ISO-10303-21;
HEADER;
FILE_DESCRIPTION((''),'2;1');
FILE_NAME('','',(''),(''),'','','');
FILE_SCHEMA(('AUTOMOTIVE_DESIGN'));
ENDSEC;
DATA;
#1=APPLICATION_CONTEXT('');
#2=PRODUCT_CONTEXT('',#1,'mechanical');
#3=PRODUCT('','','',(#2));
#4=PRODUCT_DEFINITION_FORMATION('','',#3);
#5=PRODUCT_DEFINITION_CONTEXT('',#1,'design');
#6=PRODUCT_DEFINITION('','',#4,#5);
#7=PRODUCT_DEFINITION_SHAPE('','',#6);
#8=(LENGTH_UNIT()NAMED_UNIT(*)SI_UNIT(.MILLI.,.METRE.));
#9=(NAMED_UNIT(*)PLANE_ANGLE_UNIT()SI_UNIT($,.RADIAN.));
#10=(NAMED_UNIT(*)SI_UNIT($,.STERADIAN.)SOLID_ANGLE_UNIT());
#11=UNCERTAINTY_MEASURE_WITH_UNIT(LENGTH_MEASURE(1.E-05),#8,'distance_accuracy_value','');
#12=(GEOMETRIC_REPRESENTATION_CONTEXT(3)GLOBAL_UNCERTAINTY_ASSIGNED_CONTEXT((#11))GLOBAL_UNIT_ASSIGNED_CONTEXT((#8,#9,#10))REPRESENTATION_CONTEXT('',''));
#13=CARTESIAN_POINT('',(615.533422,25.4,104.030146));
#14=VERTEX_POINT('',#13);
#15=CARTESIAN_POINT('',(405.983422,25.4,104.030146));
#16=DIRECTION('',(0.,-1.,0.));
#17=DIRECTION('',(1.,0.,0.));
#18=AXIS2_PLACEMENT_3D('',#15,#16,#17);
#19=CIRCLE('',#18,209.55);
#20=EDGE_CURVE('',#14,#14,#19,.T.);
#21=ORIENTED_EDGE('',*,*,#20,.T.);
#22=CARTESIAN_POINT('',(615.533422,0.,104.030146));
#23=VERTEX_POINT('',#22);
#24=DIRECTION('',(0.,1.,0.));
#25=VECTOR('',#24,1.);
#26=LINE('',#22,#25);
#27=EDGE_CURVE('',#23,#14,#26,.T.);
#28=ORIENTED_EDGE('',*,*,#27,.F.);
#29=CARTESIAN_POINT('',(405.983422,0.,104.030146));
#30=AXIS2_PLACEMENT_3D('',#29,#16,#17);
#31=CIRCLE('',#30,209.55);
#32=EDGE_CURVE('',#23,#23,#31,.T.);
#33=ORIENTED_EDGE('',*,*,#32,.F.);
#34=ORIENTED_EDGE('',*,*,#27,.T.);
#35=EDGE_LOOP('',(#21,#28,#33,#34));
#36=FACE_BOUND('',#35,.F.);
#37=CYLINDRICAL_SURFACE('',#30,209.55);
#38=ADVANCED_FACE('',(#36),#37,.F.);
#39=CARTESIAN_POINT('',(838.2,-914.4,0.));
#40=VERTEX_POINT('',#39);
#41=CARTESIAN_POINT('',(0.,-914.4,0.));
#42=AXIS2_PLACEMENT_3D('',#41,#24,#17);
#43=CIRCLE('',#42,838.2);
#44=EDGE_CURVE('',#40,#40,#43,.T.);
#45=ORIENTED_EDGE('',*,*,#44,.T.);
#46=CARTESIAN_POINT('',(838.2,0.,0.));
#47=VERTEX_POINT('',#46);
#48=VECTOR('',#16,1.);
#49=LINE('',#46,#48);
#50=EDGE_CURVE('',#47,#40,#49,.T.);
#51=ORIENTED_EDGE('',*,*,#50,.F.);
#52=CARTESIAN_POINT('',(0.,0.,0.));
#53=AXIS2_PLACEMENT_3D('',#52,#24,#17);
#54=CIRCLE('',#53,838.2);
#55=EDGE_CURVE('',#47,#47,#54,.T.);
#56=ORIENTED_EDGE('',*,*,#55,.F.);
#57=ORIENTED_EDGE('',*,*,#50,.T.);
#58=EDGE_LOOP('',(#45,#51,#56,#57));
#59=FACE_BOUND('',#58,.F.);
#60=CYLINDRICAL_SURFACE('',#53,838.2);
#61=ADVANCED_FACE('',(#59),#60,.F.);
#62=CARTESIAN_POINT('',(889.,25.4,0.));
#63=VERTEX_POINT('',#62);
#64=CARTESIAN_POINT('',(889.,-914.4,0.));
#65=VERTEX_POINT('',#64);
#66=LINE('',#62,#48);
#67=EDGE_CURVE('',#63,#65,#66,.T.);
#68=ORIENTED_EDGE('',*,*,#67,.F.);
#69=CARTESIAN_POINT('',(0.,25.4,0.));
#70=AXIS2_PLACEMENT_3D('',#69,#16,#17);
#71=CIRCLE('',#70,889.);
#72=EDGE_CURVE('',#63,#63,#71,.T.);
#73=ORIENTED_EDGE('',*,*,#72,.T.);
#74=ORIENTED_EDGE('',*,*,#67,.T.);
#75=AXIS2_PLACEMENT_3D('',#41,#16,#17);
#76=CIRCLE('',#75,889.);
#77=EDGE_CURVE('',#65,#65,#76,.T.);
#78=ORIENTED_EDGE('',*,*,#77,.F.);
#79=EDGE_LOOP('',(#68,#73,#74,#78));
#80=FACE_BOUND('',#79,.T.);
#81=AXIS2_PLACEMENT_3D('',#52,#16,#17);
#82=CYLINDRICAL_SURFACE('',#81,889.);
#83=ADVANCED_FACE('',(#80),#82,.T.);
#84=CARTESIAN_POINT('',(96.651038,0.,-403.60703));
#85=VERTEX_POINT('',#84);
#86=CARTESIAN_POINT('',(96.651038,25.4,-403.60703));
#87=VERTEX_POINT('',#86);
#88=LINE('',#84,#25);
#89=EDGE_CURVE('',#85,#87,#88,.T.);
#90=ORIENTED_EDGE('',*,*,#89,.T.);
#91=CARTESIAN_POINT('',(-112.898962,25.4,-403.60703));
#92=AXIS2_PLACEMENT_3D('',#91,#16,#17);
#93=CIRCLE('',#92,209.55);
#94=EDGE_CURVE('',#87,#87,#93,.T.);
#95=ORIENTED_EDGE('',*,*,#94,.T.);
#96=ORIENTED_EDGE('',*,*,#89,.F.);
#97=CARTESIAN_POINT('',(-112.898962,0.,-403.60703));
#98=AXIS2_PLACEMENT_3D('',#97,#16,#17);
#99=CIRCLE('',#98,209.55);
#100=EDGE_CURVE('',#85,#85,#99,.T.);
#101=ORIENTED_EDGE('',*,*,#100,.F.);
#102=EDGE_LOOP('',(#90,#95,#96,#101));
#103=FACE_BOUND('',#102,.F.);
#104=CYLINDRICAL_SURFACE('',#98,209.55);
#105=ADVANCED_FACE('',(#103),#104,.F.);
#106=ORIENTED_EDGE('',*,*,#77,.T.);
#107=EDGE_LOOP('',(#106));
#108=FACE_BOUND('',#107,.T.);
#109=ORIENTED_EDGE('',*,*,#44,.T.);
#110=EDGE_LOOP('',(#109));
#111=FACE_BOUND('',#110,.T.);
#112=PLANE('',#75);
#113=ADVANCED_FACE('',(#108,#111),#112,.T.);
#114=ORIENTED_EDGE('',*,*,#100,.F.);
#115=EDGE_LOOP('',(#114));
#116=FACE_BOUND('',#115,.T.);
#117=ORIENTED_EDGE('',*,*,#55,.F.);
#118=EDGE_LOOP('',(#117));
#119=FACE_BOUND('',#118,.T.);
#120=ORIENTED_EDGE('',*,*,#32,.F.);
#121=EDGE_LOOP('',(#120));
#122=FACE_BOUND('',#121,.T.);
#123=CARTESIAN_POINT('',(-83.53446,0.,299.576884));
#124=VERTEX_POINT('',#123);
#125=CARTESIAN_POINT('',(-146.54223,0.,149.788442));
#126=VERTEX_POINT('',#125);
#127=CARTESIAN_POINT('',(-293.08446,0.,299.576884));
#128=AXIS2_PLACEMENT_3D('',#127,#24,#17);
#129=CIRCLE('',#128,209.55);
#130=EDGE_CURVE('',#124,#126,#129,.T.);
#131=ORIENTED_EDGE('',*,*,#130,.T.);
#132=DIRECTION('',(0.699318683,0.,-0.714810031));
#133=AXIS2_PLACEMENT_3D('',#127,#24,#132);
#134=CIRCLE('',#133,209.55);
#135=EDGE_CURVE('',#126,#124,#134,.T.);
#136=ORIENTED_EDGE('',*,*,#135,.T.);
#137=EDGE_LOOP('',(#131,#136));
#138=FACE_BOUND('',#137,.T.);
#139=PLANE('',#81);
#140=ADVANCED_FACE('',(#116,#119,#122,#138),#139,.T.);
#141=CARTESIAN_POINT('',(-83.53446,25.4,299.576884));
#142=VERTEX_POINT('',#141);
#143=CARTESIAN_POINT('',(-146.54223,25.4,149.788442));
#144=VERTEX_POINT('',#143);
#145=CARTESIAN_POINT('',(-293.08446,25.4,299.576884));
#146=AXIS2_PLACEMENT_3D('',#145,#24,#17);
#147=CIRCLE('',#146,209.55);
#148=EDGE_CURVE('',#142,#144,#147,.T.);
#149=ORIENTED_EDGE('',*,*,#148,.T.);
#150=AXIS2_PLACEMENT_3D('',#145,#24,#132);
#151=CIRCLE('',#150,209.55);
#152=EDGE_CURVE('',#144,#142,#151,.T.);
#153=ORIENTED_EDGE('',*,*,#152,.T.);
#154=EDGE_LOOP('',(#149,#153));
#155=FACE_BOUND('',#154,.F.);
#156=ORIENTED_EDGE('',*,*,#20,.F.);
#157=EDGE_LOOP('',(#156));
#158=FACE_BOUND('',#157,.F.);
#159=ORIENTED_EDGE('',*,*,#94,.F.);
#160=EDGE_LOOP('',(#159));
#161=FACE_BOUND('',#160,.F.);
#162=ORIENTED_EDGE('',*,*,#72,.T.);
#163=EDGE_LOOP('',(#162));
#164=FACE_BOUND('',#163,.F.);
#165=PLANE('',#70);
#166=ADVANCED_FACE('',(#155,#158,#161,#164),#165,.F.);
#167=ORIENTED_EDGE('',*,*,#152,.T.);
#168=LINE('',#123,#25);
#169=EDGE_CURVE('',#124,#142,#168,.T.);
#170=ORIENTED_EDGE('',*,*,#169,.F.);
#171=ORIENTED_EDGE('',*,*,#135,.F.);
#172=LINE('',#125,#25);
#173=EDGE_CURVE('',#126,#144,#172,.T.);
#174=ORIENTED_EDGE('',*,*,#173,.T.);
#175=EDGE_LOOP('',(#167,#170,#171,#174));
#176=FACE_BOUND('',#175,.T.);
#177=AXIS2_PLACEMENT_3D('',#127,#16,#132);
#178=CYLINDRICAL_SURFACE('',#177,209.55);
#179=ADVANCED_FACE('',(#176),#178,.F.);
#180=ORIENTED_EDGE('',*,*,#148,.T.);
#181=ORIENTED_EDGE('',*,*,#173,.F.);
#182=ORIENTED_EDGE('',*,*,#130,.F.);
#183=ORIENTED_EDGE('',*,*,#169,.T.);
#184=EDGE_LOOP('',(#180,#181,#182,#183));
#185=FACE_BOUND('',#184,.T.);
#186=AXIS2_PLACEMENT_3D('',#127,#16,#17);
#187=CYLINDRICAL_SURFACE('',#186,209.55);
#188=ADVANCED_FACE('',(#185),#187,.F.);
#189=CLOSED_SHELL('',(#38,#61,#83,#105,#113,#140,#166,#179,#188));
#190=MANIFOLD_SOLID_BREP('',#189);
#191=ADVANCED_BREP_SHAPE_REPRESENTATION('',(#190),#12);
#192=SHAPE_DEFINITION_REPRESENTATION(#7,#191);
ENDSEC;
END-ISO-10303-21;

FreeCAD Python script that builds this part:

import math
import FreeCAD as App
import Part
import Sketcher

V = App.Vector
Q = App.Units.Quantity

doc = App.newDocument("Part")
body = doc.addObject("PartDesign::Body", "Body")

# Sketch on XZ plane
sketch1 = body.newObject("Sketcher::SketchObject", "Sketch")
sketch1.AttachmentSupport = (doc.getObject("XZ_Plane"), [""])
sketch1.MapMode = "FlatFace"
sketch1.addGeometry(Part.Circle(V(0, 0, 0), V(0, 0, 1), 889), False)
sketch1.addGeometry(Part.Circle(V(0, 0, 0), V(0, 0, 1), 838), False)
sketch1.addConstraint(Sketcher.Constraint("Coincident", 0, 3, -1, 1))
sketch1.addConstraint(Sketcher.Constraint("Coincident", 1, 3, -1, 1))
sketch1.addConstraint(Sketcher.Constraint("Diameter", 0, Q("70 in")))
sketch1.addConstraint(Sketcher.Constraint("Diameter", 1, Q("66 in")))
pad1 = body.newObject("PartDesign::Pad", "Pad")
pad1.Profile = sketch1
pad1.Length = Q("36 in")

# Sketch on XZ plane
sketch2 = body.newObject("Sketcher::SketchObject", "Sketch001")
sketch2.AttachmentSupport = (doc.getObject("XZ_Plane"), [""])
sketch2.MapMode = "FlatFace"
sketch2.addGeometry(Part.Circle(V(0, 0, 0), V(0, 0, 1), 889), False)
sketch2.addGeometry(Part.Circle(V(-113, -404, 0), V(0, 0, 1), 210), False)
sketch2.addGeometry(Part.ArcOfCircle(Part.Circle(V(-293, 300, 0), V(0, 0, 1), 210), math.radians(-46), math.radians(0)), False)
sketch2.addGeometry(Part.ArcOfCircle(Part.Circle(V(-293, 300, 0), V(0, 0, 1), 210), math.radians(0), math.radians(314)), False)
sketch2.addGeometry(Part.Circle(V(406, 104, 0), V(0, 0, 1), 210), False)
sketch2.addConstraint(Sketcher.Constraint("Tangent", 2, 1, 3, 2))
sketch2.addConstraint(Sketcher.Constraint("Coincident", 3, 1, 2, 2))
sketch2.addConstraint(Sketcher.Constraint("Coincident", 0, 3, -1, 1))
sketch2.addConstraint(Sketcher.Constraint("Equal", 1, 2))
sketch2.addConstraint(Sketcher.Constraint("Equal", 3, 4))
sketch2.addConstraint(Sketcher.Constraint("Horizontal", 2, 3, 3, 1))
sketch2.addConstraint(Sketcher.Constraint("Diameter", 0, Q("70 in")))
sketch2.addConstraint(Sketcher.Constraint("Diameter", 1, Q("16.5 in")))
sketch2.addConstraint(Sketcher.Constraint("DistanceX", 1, 3, -1, 1, 112.898962))
sketch2.addConstraint(Sketcher.Constraint("DistanceY", 1, 3, -1, 1, 403.60703))
sketch2.addConstraint(Sketcher.Constraint("DistanceX", 2, 3, -1, 1, 293.08446))
sketch2.addConstraint(Sketcher.Constraint("DistanceX", -1, 1, 4, 3, 405.983422))
sketch2.addConstraint(Sketcher.Constraint("DistanceX", 2, 1, -1, 1, 146.54223))
sketch2.addConstraint(Sketcher.Constraint("DistanceY", -1, 1, 2, 1, 149.788442))
sketch2.addConstraint(Sketcher.Constraint("DistanceY", 4, 3, 2, 3, 195.546738))
pad2 = body.newObject("PartDesign::Pad", "Pad001")
pad2.Profile = sketch2
pad2.Length = Q("1 in")
pad2.Reversed = True

doc.recompute()
